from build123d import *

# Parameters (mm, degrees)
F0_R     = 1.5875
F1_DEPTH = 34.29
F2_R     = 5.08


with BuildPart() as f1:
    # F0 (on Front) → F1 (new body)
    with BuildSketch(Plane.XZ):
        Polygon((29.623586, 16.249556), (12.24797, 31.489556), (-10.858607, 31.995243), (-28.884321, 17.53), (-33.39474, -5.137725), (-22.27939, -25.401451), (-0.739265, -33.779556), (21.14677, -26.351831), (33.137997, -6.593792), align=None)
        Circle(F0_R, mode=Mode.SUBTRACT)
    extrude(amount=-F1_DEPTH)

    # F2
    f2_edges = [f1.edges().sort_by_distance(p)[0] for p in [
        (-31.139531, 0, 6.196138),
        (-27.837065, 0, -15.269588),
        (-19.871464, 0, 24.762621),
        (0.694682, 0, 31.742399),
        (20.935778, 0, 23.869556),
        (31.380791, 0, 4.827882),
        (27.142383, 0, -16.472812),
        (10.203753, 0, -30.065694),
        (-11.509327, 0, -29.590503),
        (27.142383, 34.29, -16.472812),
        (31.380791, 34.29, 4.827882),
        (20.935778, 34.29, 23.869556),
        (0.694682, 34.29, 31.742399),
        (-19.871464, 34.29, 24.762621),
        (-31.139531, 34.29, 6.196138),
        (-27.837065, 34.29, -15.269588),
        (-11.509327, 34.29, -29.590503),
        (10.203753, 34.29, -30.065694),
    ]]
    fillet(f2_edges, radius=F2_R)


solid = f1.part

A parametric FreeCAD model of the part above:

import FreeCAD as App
import Part
import Sketcher
from FreeCAD import Vector
Q = App.Units.Quantity


def edges_at(feature, points):
    """Names of the edges that pass closest to the given points."""
    edges = feature.Shape.Edges
    near = lambda p: min(range(len(edges)), key=lambda i: edges[i].distToShape(Part.Vertex(*p))[0])
    return sorted({f"Edge{near(p) + 1}" for p in points})

doc = App.newDocument("Part")
params = doc.addObject("Spreadsheet::Sheet", "Params")
for row, (alias, value) in enumerate([
    ("sketch1_diameter", "0.125 in"),
    ("pad1_length", "1.35 in"),
    ("fillet_radius", "0.2 in"),
], start=1):
    params.set(f"A{row}", alias)
    params.set(f"B{row}", "=" + value)
    params.setAlias(f"B{row}", alias)

body = doc.addObject("PartDesign::Body", "Body")

# Sketch on XZ plane
sketch1 = doc.addObject("Sketcher::SketchObject", "Sketch")
body.addObject(sketch1)
sketch1.AttachmentSupport = (doc.XZ_Plane, [""])
sketch1.MapMode = "FlatFace"
sketch1.addGeometry(Part.LineSegment(Vector(29.6, 16.2, 0), Vector(12.2, 31.5, 0)), False)
sketch1.addGeometry(Part.LineSegment(Vector(12.2, 31.5, 0), Vector(-10.9, 32, 0)), False)
sketch1.addGeometry(Part.LineSegment(Vector(-10.9, 32, 0), Vector(-28.9, 17.5, 0)), False)
sketch1.addGeometry(Part.LineSegment(Vector(-28.9, 17.5, 0), Vector(-33.4, -5.1, 0)), False)
sketch1.addGeometry(Part.LineSegment(Vector(-33.4, -5.1, 0), Vector(-22.3, -25.4, 0)), False)
sketch1.addGeometry(Part.LineSegment(Vector(-22.3, -25.4, 0), Vector(-0.7, -33.8, 0)), False)
sketch1.addGeometry(Part.LineSegment(Vector(-0.7, -33.8, 0), Vector(21.1, -26.4, 0)), False)
sketch1.addGeometry(Part.LineSegment(Vector(21.1, -26.4, 0), Vector(33.1, -6.6, 0)), False)
sketch1.addGeometry(Part.LineSegment(Vector(33.1, -6.6, 0), Vector(29.6, 16.2, 0)), False)
sketch1.addGeometry(Part.Circle(Vector(0, 0, 0), Vector(0, 0, 1), 1.6), False)
sketch1.addConstraint(Sketcher.Constraint("Coincident", 0, 2, 1, 1))
sketch1.addConstraint(Sketcher.Constraint("Coincident", 1, 2, 2, 1))
sketch1.addConstraint(Sketcher.Constraint("Coincident", 2, 2, 3, 1))
sketch1.addConstraint(Sketcher.Constraint("Coincident", 3, 2, 4, 1))
sketch1.addConstraint(Sketcher.Constraint("Coincident", 4, 2, 5, 1))
sketch1.addConstraint(Sketcher.Constraint("Coincident", 5, 2, 6, 1))
sketch1.addConstraint(Sketcher.Constraint("Coincident", 6, 2, 7, 1))
sketch1.addConstraint(Sketcher.Constraint("Coincident", 7, 2, 8, 1))
sketch1.addConstraint(Sketcher.Constraint("Coincident", 8, 2, 0, 1))
sketch1.addConstraint(Sketcher.Constraint("Coincident", 9, 3, -1, 1))
sketch1.addConstraint(Sketcher.Constraint("Equal", 0, 1))
sketch1.addConstraint(Sketcher.Constraint("Equal", 1, 2))
sketch1.addConstraint(Sketcher.Constraint("Equal", 2, 3))
sketch1.addConstraint(Sketcher.Constraint("Equal", 3, 4))
sketch1.addConstraint(Sketcher.Constraint("Equal", 4, 5))
sketch1.addConstraint(Sketcher.Constraint("Equal", 5, 6))
sketch1.addConstraint(Sketcher.Constraint("Equal", 6, 7))
sketch1.addConstraint(Sketcher.Constraint("Equal", 7, 8))
sketch1.addConstraint(Sketcher.Constraint("Diameter", 9, Q("0.125 in")))
sketch1.addConstraint(Sketcher.Constraint("DistanceY", 8, 2, 0, 2, Q("0.6 in")))
sketch1.addConstraint(Sketcher.Constraint("DistanceY", -1, 1, 2, 2, Q("17.53 mm")))
sketch1.addConstraint(Sketcher.Constraint("DistanceX", 0, 2, 6, 2, Q("8.8988 mm")))
sketch1.addConstraint(Sketcher.Constraint("Distance", 0, Q("23.11211 mm")))
sketch1.addConstraint(Sketcher.Constraint("DistanceX", -1, 1, 0, 2, Q("12.24797 mm")))
sketch1.addConstraint(Sketcher.Constraint("DistanceX", 2, 2, -1, 1, Q("28.884321 mm")))
sketch1.addConstraint(Sketcher.Constraint("DistanceX", 3, 2, -1, 1, Q("33.39474 mm")))
sketch1.addConstraint(Sketcher.Constraint("DistanceX", 4, 2, -1, 1, Q("22.27939 mm")))
sketch1.addConstraint(Sketcher.Constraint("DistanceY", 6, 2, -1, 1, Q("26.351831 mm")))
sketch1.addConstraint(Sketcher.Constraint("DistanceY", 7, 2, -1, 1, Q("6.593792 mm")))
sketch1.setExpression("Constraints[18]", "Params.sketch1_diameter")
pad1 = doc.addObject("PartDesign::Pad", "Pad")
body.addObject(pad1)
pad1.Profile = sketch1
pad1.setExpression("Length", "Params.pad1_length")
pad1.Reversed = True
doc.recompute()

fillet = doc.addObject("PartDesign::Fillet", "Fillet")
body.addObject(fillet)
fillet.Base = (pad1, edges_at(pad1, [
    (-31.14, 0, 6.196),
    (-27.837, 0, -15.27),
    (-19.871, 0, 24.763),
    (0.695, 0, 31.742),
    (20.936, 0, 23.87),
    (31.381, 0, 4.828),
    (27.142, 0, -16.473),
    (10.204, 0, -30.066),
    (-11.509, 0, -29.591),
    (27.142, 34.29, -16.473),
    (31.381, 34.29, 4.828),
    (20.936, 34.29, 23.87),
    (0.695, 34.29, 31.742),
    (-19.871, 34.29, 24.763),
    (-31.14, 34.29, 6.196),
    (-27.837, 34.29, -15.27),
    (-11.509, 34.29, -29.591),
    (10.204, 34.29, -30.066),
]))
fillet.setExpression("Radius", "Params.fillet_radius")

doc.recompute()
